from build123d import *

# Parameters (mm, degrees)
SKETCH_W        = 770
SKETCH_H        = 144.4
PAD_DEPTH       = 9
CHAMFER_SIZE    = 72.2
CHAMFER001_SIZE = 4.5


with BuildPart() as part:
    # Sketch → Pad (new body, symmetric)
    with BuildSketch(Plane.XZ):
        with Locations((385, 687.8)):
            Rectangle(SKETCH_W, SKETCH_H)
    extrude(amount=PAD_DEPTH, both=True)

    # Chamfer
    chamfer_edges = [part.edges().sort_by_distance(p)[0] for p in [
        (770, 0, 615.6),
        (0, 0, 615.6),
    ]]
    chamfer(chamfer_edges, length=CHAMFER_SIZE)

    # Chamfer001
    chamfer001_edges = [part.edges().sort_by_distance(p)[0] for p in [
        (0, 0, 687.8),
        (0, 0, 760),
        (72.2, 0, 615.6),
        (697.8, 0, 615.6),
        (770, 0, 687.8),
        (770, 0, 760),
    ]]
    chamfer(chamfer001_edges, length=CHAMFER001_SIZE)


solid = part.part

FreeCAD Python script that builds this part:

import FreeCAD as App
import Part
import Sketcher

V = App.Vector


def edges_at(feature, points):
    """Names of the edges that pass closest to the given points."""
    edges = feature.Shape.Edges
    near = lambda p: min(range(len(edges)), key=lambda i: edges[i].distToShape(Part.Vertex(*p))[0])
    return sorted({f"Edge{near(p) + 1}" for p in points})


def add_polygon(sketch, points):
    """Adds a closed chain of lines whose ends are joined by coincident constraints."""
    first, n = sketch.GeometryCount, len(points)
    for a, b in zip(points, points[1:] + points[:1]):
        sketch.addGeometry(Part.LineSegment(App.Vector(*a, 0), App.Vector(*b, 0)), False)
    for i in range(n):
        sketch.addConstraint(Sketcher.Constraint("Coincident", first + i, 2, first + (i + 1) % n, 1))

doc = App.newDocument("Part")
params = doc.addObject("Spreadsheet::Sheet", "Params")
for row, (alias, value) in enumerate([
    ("sketch1_width", "770 mm"),
    ("sketch1_height", "144.4 mm"),
    ("pad1_length", "18 mm"),
    ("chamfer_size", "72.2 mm"),
    ("chamfer2_size", "4.5 mm"),
], start=1):
    params.set(f"A{row}", alias)
    params.set(f"B{row}", "=" + value)
    params.setAlias(f"B{row}", alias)

body = doc.addObject("PartDesign::Body", "Body")

# Sketch on XZ plane
sketch1 = body.newObject("Sketcher::SketchObject", "Sketch")
sketch1.AttachmentSupport = (doc.getObject("XZ_Plane"), [""])
sketch1.MapMode = "FlatFace"
add_polygon(sketch1, [(0, 760), (0, 616), (770, 616), (770, 760)])  # lines 0-3
sketch1.addConstraint([
    Sketcher.Constraint("Vertical", 0),
    Sketcher.Constraint("Horizontal", 1),
    Sketcher.Constraint("Vertical", 2),
    Sketcher.Constraint("Horizontal", 3),
    Sketcher.Constraint("PointOnObject", 0, 2, -2),
    Sketcher.Constraint("DistanceX", 1, 1, 1, 2, 770.0),
    Sketcher.Constraint("DistanceY", 0, 2, 0, 1, 144.4),
    Sketcher.Constraint("DistanceY", -1, 1, 2, 2, 760.0),
])
sketch1.setExpression("Constraints[9]", "Params.sketch1_width")
sketch1.setExpression("Constraints[10]", "Params.sketch1_height")
pad1 = body.newObject("PartDesign::Pad", "Pad")
pad1.Profile = sketch1
pad1.setExpression("Length", "Params.pad1_length")
pad1.Midplane = True
doc.recompute()

chamfer = body.newObject("PartDesign::Chamfer", "Chamfer")
chamfer.Base = (pad1, edges_at(pad1, [(770, 0, 615.6), (0, 0, 615.6)]))
chamfer.setExpression("Size", "Params.chamfer_size")
doc.recompute()

chamfer2 = body.newObject("PartDesign::Chamfer", "Chamfer001")
chamfer2.Base = (chamfer, edges_at(chamfer, [
    (0, 0, 687.8),
    (0, 0, 760),
    (72.2, 0, 615.6),
    (697.8, 0, 615.6),
    (770, 0, 687.8),
    (770, 0, 760),
]))
chamfer2.setExpression("Size", "Params.chamfer2_size")

doc.recompute()
